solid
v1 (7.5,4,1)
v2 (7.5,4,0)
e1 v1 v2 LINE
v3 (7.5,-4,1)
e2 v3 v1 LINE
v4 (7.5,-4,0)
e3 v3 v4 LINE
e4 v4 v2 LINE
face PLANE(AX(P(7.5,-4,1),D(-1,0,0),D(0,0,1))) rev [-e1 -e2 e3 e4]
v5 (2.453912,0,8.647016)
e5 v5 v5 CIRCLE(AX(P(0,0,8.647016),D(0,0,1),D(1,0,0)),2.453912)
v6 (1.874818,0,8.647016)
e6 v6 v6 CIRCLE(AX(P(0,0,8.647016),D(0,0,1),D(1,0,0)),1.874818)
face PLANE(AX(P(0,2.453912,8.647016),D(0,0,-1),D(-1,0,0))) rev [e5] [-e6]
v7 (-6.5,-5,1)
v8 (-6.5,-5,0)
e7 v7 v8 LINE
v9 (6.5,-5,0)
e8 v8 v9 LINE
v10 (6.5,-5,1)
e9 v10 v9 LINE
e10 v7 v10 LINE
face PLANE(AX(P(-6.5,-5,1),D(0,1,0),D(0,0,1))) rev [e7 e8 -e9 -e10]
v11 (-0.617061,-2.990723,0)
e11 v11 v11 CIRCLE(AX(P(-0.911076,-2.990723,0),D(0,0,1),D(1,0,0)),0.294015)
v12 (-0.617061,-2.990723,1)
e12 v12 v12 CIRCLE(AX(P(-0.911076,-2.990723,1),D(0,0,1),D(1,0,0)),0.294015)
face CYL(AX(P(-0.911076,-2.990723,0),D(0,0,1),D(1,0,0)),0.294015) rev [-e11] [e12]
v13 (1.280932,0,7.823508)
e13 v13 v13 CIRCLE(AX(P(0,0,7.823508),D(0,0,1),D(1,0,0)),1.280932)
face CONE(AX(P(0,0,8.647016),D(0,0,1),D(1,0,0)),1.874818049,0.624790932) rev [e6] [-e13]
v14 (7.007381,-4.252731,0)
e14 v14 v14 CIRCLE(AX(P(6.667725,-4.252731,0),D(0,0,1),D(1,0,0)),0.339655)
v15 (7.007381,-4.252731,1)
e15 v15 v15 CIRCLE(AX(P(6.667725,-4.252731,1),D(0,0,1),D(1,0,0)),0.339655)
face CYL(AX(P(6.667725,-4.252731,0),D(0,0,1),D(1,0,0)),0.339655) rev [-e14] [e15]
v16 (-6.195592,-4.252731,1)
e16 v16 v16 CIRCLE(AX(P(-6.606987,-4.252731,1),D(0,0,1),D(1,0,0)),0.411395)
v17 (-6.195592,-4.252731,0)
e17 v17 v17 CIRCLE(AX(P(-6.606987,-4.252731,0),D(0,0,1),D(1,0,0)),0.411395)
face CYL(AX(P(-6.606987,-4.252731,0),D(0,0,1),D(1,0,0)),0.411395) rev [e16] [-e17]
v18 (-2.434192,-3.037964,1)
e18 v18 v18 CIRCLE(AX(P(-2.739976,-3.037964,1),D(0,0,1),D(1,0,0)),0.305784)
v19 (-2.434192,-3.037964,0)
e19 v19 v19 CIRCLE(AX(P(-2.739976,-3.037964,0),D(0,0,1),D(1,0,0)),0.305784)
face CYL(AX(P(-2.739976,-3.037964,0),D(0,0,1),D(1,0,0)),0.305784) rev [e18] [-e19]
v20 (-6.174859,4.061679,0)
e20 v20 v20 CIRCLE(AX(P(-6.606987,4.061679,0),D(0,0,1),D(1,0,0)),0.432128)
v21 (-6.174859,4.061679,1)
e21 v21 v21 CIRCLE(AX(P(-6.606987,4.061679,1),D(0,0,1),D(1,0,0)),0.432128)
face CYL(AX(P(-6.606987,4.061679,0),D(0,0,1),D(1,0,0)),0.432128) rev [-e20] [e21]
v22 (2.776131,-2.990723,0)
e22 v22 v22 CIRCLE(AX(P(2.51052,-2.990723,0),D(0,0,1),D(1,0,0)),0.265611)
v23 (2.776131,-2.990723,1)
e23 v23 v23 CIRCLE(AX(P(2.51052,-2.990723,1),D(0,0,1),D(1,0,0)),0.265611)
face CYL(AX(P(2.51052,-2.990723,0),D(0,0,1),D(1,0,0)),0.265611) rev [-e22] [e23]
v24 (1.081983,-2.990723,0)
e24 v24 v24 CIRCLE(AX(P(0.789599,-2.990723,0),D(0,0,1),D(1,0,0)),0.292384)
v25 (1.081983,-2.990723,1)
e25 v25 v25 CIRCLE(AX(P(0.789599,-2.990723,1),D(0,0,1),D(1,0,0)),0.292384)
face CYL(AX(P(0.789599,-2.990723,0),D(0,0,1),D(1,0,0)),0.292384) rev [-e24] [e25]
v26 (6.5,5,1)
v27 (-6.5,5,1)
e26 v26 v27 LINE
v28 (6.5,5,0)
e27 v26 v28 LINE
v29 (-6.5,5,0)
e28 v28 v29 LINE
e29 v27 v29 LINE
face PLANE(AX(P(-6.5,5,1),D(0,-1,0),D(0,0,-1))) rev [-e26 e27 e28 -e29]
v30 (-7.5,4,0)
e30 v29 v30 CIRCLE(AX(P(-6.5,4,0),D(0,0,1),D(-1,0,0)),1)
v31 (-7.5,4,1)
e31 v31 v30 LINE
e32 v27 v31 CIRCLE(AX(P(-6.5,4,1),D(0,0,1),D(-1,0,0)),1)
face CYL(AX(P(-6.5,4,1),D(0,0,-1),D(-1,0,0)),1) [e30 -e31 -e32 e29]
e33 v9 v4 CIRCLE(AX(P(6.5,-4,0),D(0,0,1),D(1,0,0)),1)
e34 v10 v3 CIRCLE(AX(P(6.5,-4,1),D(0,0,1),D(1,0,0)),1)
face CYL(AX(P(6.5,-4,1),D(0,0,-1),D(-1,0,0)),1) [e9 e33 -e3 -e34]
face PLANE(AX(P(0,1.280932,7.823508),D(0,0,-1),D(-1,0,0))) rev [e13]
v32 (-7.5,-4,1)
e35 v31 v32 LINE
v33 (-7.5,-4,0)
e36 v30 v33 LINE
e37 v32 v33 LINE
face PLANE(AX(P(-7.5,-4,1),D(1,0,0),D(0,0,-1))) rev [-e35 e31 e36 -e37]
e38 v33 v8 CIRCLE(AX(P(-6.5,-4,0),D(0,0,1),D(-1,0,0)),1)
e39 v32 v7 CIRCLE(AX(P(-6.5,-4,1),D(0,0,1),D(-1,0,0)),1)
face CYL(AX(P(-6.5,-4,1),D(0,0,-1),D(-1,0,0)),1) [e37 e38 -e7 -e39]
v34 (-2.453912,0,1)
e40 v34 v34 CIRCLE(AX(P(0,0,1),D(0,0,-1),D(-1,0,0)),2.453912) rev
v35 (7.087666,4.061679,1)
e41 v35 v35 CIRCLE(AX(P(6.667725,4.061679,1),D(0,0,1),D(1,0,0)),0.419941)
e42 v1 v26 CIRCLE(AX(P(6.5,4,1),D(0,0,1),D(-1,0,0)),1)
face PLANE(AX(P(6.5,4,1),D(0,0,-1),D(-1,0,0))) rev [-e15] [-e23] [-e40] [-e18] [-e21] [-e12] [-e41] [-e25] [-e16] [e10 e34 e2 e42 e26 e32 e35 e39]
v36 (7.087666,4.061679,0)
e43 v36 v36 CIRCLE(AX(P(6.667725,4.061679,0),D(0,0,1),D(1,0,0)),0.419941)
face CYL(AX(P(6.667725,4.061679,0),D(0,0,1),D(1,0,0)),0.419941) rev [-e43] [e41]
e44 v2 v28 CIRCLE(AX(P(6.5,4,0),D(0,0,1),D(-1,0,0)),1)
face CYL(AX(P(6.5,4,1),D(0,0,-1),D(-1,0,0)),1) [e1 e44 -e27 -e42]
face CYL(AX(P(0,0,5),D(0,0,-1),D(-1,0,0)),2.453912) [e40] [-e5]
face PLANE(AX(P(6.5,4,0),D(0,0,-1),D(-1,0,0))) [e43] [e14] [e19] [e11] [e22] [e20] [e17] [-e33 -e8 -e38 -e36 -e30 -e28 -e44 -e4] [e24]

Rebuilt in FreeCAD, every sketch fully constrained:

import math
import FreeCAD as App
import Part
import Sketcher
from FreeCAD import Vector
Q = App.Units.Quantity

doc = App.newDocument("Part")
body = doc.addObject("PartDesign::Body", "Body")

sketch1 = body.newObject("Sketcher::SketchObject", "Sketch")
sketch1.AttachmentSupport = (doc.getObject("XY_Plane"), [""])
sketch1.MapMode = "FlatFace"
sketch1.addGeometry(Part.LineSegment(Vector(-6.5, -5, 0), Vector(6.5, -5, 0)), False)
sketch1.addGeometry(Part.ArcOfCircle(Part.Circle(Vector(6.5, -4, 0), Vector(0, 0, 1), 1), math.radians(-90), math.radians(0)), False)
sketch1.addGeometry(Part.LineSegment(Vector(7.5, -4, 0), Vector(7.5, 4, 0)), False)
sketch1.addGeometry(Part.ArcOfCircle(Part.Circle(Vector(6.5, 4, 0), Vector(0, 0, 1), 1), math.radians(0), math.radians(90)), False)
sketch1.addGeometry(Part.LineSegment(Vector(6.5, 5, 0), Vector(-6.5, 5, 0)), False)
sketch1.addGeometry(Part.ArcOfCircle(Part.Circle(Vector(-6.5, 4, 0), Vector(0, 0, 1), 1), math.radians(90), math.radians(180)), False)
sketch1.addGeometry(Part.LineSegment(Vector(-7.5, 4, 0), Vector(-7.5, -4, 0)), False)
sketch1.addGeometry(Part.ArcOfCircle(Part.Circle(Vector(-6.5, -4, 0), Vector(0, 0, 1), 1), math.radians(-180), math.radians(-90)), False)
sketch1.addConstraint(Sketcher.Constraint("Tangent", 0, 2, 1, 1))
sketch1.addConstraint(Sketcher.Constraint("Tangent", 1, 2, 2, 1))
sketch1.addConstraint(Sketcher.Constraint("Tangent", 2, 2, 3, 1))
sketch1.addConstraint(Sketcher.Constraint("Tangent", 3, 2, 4, 1))
sketch1.addConstraint(Sketcher.Constraint("Tangent", 4, 2, 5, 1))
sketch1.addConstraint(Sketcher.Constraint("Tangent", 5, 2, 6, 1))
sketch1.addConstraint(Sketcher.Constraint("Tangent", 6, 2, 7, 1))
sketch1.addConstraint(Sketcher.Constraint("Tangent", 7, 2, 0, 1))
sketch1.addConstraint(Sketcher.Constraint("Horizontal", 0))
sketch1.addConstraint(Sketcher.Constraint("Vertical", 2))
sketch1.addConstraint(Sketcher.Constraint("Horizontal", 4))
sketch1.addConstraint(Sketcher.Constraint("Vertical", 6))
sketch1.addConstraint(Sketcher.Constraint("Equal", 1, 3))
sketch1.addConstraint(Sketcher.Constraint("Equal", 3, 5))
sketch1.addConstraint(Sketcher.Constraint("Equal", 5, 7))
sketch1.addConstraint(Sketcher.Constraint("Symmetric", 1, 3, 5, 3, -1, 1))
sketch1.addConstraint(Sketcher.Constraint("Radius", 1, Q("1 mm")))
sketch1.addConstraint(Sketcher.Constraint("DistanceX", 0, 1, 0, 2, Q("13 mm")))
sketch1.addConstraint(Sketcher.Constraint("DistanceY", 2, 1, 2, 2, Q("8 mm")))
pad1 = body.newObject("PartDesign::Pad", "Pad")
pad1.Profile = sketch1
pad1.Length = 1

sketch2 = body.newObject("Sketcher::SketchObject", "Sketch001")
sketch2.AttachmentSupport = (doc.getObject("XY_Plane"), [""])
sketch2.MapMode = "FlatFace"
sketch2.AttachmentOffset = App.Placement(Vector(0, 0, 1), App.Rotation())
sketch2.addGeometry(Part.Circle(Vector(-6.61, -4.25, 0), Vector(0, 0, 1), 0.41), False)
sketch2.addGeometry(Part.Circle(Vector(-2.74, -3.04, 0), Vector(0, 0, 1), 0.31), False)
sketch2.addGeometry(Part.Circle(Vector(-0.91, -2.99, 0), Vector(0, 0, 1), 0.29), False)
sketch2.addGeometry(Part.Circle(Vector(0.79, -2.99, 0), Vector(0, 0, 1), 0.29), False)
sketch2.addGeometry(Part.Circle(Vector(2.51, -2.99, 0), Vector(0, 0, 1), 0.27), False)
sketch2.addGeometry(Part.Circle(Vector(6.67, -4.25, 0), Vector(0, 0, 1), 0.34), False)
sketch2.addGeometry(Part.Circle(Vector(6.67, 4.06, 0), Vector(0, 0, 1), 0.42), False)
sketch2.addGeometry(Part.Circle(Vector(-6.61, 4.06, 0), Vector(0, 0, 1), 0.43), False)
sketch2.addConstraint(Sketcher.Constraint("Horizontal", 2, 3, 3, 3))
sketch2.addConstraint(Sketcher.Constraint("Horizontal", 3, 3, 4, 3))
sketch2.addConstraint(Sketcher.Constraint("Horizontal", 0, 3, 5, 3))
sketch2.addConstraint(Sketcher.Constraint("Horizontal", 6, 3, 7, 3))
sketch2.addConstraint(Sketcher.Constraint("Vertical", 5, 3, 6, 3))
sketch2.addConstraint(Sketcher.Constraint("Vertical", 0, 3, 7, 3))
sketch2.addConstraint(Sketcher.Constraint("Diameter", 0, Q("0.822789 mm")))
sketch2.addConstraint(Sketcher.Constraint("Diameter", 1, Q("0.611569 mm")))
sketch2.addConstraint(Sketcher.Constraint("Diameter", 2, Q("0.588029 mm")))
sketch2.addConstraint(Sketcher.Constraint("Diameter", 5, Q("0.679311 mm")))
sketch2.addConstraint(Sketcher.Constraint("Diameter", 3, Q("0.584767 mm")))
sketch2.addConstraint(Sketcher.Constraint("Diameter", 4, Q("0.531222 mm")))
sketch2.addConstraint(Sketcher.Constraint("Diameter", 6, Q("0.839882 mm")))
sketch2.addConstraint(Sketcher.Constraint("Diameter", 7, Q("0.864257 mm")))
sketch2.addConstraint(Sketcher.Constraint("DistanceX", -1, 1, 3, 3, Q("0.789599 mm")))
sketch2.addConstraint(Sketcher.Constraint("DistanceX", 1, 3, 2, 3, Q("1.8289 mm")))
sketch2.addConstraint(Sketcher.Constraint("DistanceX", 2, 3, 5, 3, Q("7.578801 mm")))
sketch2.addConstraint(Sketcher.Constraint("DistanceY", 4, 3, 6, 3, Q("7.052402 mm")))
sketch2.addConstraint(Sketcher.Constraint("DistanceY", 0, 3, -1, 1, Q("4.252731 mm")))
sketch2.addConstraint(Sketcher.Constraint("DistanceX", -1, 1, 4, 3, Q("2.51052 mm")))
sketch2.addConstraint(Sketcher.Constraint("DistanceY", -1, 1, 6, 3, Q("4.061679 mm")))
sketch2.addConstraint(Sketcher.Constraint("DistanceX", 0, 3, 1, 3, Q("3.867011 mm")))
sketch2.addConstraint(Sketcher.Constraint("DistanceY", 1, 3, 2, 3, Q("0.047241 mm")))
sketch2.addConstraint(Sketcher.Constraint("DistanceX", 0, 3, -1, 1, Q("6.606987 mm")))
pocket1 = body.newObject("PartDesign::Pocket", "Pocket")
pocket1.Profile = sketch2
pocket1.Length = 1

sketch3 = body.newObject("Sketcher::SketchObject", "Sketch002")
sketch3.AttachmentSupport = (doc.getObject("XY_Plane"), [""])
sketch3.MapMode = "FlatFace"
sketch3.AttachmentOffset = App.Placement(Vector(0, 0, 1), App.Rotation())
sketch3.addGeometry(Part.Circle(Vector(0, 0, 0), Vector(0, 0, 1), 2.5), False)
sketch3.addConstraint(Sketcher.Constraint("Coincident", 0, 3, -1, 1))
sketch3.addConstraint(Sketcher.Constraint("Diameter", 0, Q("4.907824 mm")))
pad2 = body.newObject("PartDesign::Pad", "Pad001")
pad2.Profile = sketch3
pad2.Length = 4

sketch4 = body.newObject("Sketcher::SketchObject", "Sketch003")
sketch4.AttachmentSupport = (doc.getObject("YZ_Plane"), [""])
sketch4.MapMode = "FlatFace"
sketch4.addGeometry(Part.LineSegment(Vector(2.5, 5, 0), Vector(2.5, 8.6, 0)), False)
sketch4.addGeometry(Part.LineSegment(Vector(2.5, 8.6, 0), Vector(1.9, 8.6, 0)), False)
sketch4.addGeometry(Part.LineSegment(Vector(1.9, 8.6, 0), Vector(1.3, 7.8, 0)), False)
sketch4.addGeometry(Part.LineSegment(Vector(1.3, 7.8, 0), Vector(0, 7.8, 0)), False)
sketch4.addGeometry(Part.LineSegment(Vector(0, 7.8, 0), Vector(0, 5, 0)), False)
sketch4.addGeometry(Part.LineSegment(Vector(0, 5, 0), Vector(2.5, 5, 0)), False)
sketch4.addConstraint(Sketcher.Constraint("Coincident", 0, 2, 1, 1))
sketch4.addConstraint(Sketcher.Constraint("Coincident", 1, 2, 2, 1))
sketch4.addConstraint(Sketcher.Constraint("Coincident", 2, 2, 3, 1))
sketch4.addConstraint(Sketcher.Constraint("Coincident", 3, 2, 4, 1))
sketch4.addConstraint(Sketcher.Constraint("Coincident", 4, 2, 5, 1))
sketch4.addConstraint(Sketcher.Constraint("Coincident", 5, 2, 0, 1))
sketch4.addConstraint(Sketcher.Constraint("Vertical", 0))
sketch4.addConstraint(Sketcher.Constraint("Horizontal", 1))
sketch4.addConstraint(Sketcher.Constraint("Horizontal", 3))
sketch4.addConstraint(Sketcher.Constraint("Vertical", 4))
sketch4.addConstraint(Sketcher.Constraint("Horizontal", 5))
sketch4.addConstraint(Sketcher.Constraint("PointOnObject", 3, 2, -2))
sketch4.addConstraint(Sketcher.Constraint("DistanceY", -1, 1, 4, 2, Q("5 mm")))
sketch4.addConstraint(Sketcher.Constraint("DistanceX", 3, 2, 3, 1, Q("1.280932 mm")))
sketch4.addConstraint(Sketcher.Constraint("DistanceX", 5, 1, 5, 2, Q("2.453912 mm")))
sketch4.addConstraint(Sketcher.Constraint("DistanceY", 4, 2, 4, 1, Q("2.823508 mm")))
sketch4.addConstraint(Sketcher.Constraint("DistanceX", 1, 2, 1, 1, Q("0.579094 mm")))
sketch4.addConstraint(Sketcher.Constraint("DistanceY", 0, 1, 0, 2, Q("3.647016 mm")))
revolution = body.newObject("PartDesign::Revolution", "Revolution")
revolution.Profile = sketch4
revolution.ReferenceAxis = (sketch4, ["V_Axis"])
revolution.Angle = 360

doc.recompute()
